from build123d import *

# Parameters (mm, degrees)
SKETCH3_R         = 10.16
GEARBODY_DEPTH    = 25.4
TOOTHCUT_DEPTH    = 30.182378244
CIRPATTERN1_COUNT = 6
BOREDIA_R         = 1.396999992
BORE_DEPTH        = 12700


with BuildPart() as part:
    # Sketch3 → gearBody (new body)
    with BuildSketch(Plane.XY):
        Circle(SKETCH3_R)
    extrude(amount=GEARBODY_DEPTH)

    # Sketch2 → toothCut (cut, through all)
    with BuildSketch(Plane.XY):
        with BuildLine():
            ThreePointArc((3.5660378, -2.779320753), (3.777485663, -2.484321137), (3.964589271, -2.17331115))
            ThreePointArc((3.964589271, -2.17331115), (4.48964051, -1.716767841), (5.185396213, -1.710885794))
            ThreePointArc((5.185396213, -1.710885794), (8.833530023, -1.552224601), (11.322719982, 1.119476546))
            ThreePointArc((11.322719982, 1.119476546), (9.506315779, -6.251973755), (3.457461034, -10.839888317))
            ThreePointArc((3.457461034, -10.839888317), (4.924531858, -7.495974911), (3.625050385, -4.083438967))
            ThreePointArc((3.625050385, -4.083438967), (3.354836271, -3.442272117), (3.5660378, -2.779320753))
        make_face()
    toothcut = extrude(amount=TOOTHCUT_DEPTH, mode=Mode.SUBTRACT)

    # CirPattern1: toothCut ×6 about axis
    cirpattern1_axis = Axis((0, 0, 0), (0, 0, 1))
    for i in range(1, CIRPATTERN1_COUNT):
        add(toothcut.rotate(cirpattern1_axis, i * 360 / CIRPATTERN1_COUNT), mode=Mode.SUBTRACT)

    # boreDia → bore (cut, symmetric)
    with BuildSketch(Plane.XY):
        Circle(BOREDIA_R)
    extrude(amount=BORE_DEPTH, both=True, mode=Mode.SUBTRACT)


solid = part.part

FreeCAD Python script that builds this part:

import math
import FreeCAD as App
import Part
import Sketcher
Q = App.Units.Quantity

doc = App.newDocument("Part")
body = doc.addObject("PartDesign::Body", "Body")

# Sketch on XY plane
sketch1 = body.newObject("Sketcher::SketchObject", "Sketch")
sketch1.AttachmentSupport = (doc.getObject("XY_Plane"), [""])
sketch1.MapMode = "FlatFace"
sketch1.addGeometry(Part.Circle(App.Vector(0, 0, 0), App.Vector(0, 0, 1), 10), False)
sketch1.addConstraint(Sketcher.Constraint("Coincident", 0, 3, -1, 1))
sketch1.addConstraint(Sketcher.Constraint("Diameter", 0, Q("0.8 in")))
pad1 = body.newObject("PartDesign::Pad", "Pad")
pad1.Profile = sketch1
pad1.Length = Q("1 in")

# Sketch on XY plane
sketch2 = body.newObject("Sketcher::SketchObject", "Sketch001")
sketch2.AttachmentSupport = (doc.getObject("XY_Plane"), [""])
sketch2.MapMode = "FlatFace"
sketch2.addGeometry(Part.ArcOfCircle(Part.Circle(App.Vector(0, 0, 0), App.Vector(0, 0, 1), 4.5), math.radians(-37.93), math.radians(-28.73)), False)
sketch2.addGeometry(Part.ArcOfCircle(Part.Circle(App.Vector(4.4, -3.4, 0), App.Vector(0, 0, 1), 1), math.radians(142), math.radians(223)), False)
sketch2.addGeometry(Part.ArcOfCircle(Part.Circle(App.Vector(0.1, -7.4, 0), App.Vector(0, 0, 1), 4.8), math.radians(-46), math.radians(43)), False)
sketch2.addGeometry(Part.ArcOfCircle(Part.Circle(App.Vector(0, 0, 0), App.Vector(0, 0, 1), 11.4), math.radians(-72), math.radians(6)), False)
sketch2.addGeometry(Part.ArcOfCircle(Part.Circle(App.Vector(6.8, 2.8, 0), App.Vector(0, 0, 1), 4.8), math.radians(-110), math.radians(-21)), False)
sketch2.addGeometry(Part.ArcOfCircle(Part.Circle(App.Vector(4.8, -2.7, 0), App.Vector(0, 0, 1), 1), math.radians(70), math.radians(151)), False)
sketch2.addConstraint(Sketcher.Constraint("Tangent", 0, 1, 1, 1))
sketch2.addConstraint(Sketcher.Constraint("Tangent", 1, 2, 2, 2))
sketch2.addConstraint(Sketcher.Constraint("Coincident", 2, 1, 3, 1))
sketch2.addConstraint(Sketcher.Constraint("Coincident", 3, 2, 4, 2))
sketch2.addConstraint(Sketcher.Constraint("Tangent", 4, 1, 5, 1))
sketch2.addConstraint(Sketcher.Constraint("Tangent", 5, 2, 0, 2))
sketch2.addConstraint(Sketcher.Constraint("Coincident", 0, 3, -1, 1))
sketch2.addConstraint(Sketcher.Constraint("Coincident", 3, 3, -1, 1))
sketch2.addConstraint(Sketcher.Constraint("Equal", 2, 4))
sketch2.addConstraint(Sketcher.Constraint("Equal", 1, 5))
sketch2.addConstraint(Sketcher.Constraint("Radius", 0, Q("0.178 in")))
sketch2.addConstraint(Sketcher.Constraint("Radius", 1, 1.00457))
sketch2.addConstraint(Sketcher.Constraint("Radius", 2, 4.818255))
sketch2.addConstraint(Sketcher.Constraint("Radius", 3, 11.377927))
sketch2.addConstraint(Sketcher.Constraint("DistanceY", 5, 3, -1, 1, 2.656201))
sketch2.addConstraint(Sketcher.Constraint("DistanceX", -1, 1, 1, 3, 4.358379))
sketch2.addConstraint(Sketcher.Constraint("DistanceX", -1, 1, 2, 3, 0.107759))
sketch2.addConstraint(Sketcher.Constraint("DistanceX", -1, 1, 3, 2, 11.32272))
pocket1 = body.newObject("PartDesign::Pocket", "Pocket")
pocket1.Profile = sketch2
pocket1.Type = "ThroughAll"
pocket1.Reversed = True
doc.recompute()

polarpattern = body.newObject("PartDesign::PolarPattern", "PolarPattern")
polarpattern.Originals = [pocket1]
polarpattern.Axis = (doc.getObject("Z_Axis"), [""])
polarpattern.Angle = 360
polarpattern.Occurrences = 6
body.Tip = polarpattern

# Sketch on XY plane
sketch3 = body.newObject("Sketcher::SketchObject", "Sketch002")
sketch3.AttachmentSupport = (doc.getObject("XY_Plane"), [""])
sketch3.MapMode = "FlatFace"
sketch3.addGeometry(Part.Circle(App.Vector(0, 0, 0), App.Vector(0, 0, 1), 1.4), False)
sketch3.addConstraint(Sketcher.Constraint("Coincident", 0, 3, -1, 1))
sketch3.addConstraint(Sketcher.Constraint("Diameter", 0, Q("0.11 in")))
pocket2 = body.newObject("PartDesign::Pocket", "Pocket001")
pocket2.Profile = sketch3
pocket2.Length = Q("1000 in")
pocket2.Midplane = True

doc.recompute()
